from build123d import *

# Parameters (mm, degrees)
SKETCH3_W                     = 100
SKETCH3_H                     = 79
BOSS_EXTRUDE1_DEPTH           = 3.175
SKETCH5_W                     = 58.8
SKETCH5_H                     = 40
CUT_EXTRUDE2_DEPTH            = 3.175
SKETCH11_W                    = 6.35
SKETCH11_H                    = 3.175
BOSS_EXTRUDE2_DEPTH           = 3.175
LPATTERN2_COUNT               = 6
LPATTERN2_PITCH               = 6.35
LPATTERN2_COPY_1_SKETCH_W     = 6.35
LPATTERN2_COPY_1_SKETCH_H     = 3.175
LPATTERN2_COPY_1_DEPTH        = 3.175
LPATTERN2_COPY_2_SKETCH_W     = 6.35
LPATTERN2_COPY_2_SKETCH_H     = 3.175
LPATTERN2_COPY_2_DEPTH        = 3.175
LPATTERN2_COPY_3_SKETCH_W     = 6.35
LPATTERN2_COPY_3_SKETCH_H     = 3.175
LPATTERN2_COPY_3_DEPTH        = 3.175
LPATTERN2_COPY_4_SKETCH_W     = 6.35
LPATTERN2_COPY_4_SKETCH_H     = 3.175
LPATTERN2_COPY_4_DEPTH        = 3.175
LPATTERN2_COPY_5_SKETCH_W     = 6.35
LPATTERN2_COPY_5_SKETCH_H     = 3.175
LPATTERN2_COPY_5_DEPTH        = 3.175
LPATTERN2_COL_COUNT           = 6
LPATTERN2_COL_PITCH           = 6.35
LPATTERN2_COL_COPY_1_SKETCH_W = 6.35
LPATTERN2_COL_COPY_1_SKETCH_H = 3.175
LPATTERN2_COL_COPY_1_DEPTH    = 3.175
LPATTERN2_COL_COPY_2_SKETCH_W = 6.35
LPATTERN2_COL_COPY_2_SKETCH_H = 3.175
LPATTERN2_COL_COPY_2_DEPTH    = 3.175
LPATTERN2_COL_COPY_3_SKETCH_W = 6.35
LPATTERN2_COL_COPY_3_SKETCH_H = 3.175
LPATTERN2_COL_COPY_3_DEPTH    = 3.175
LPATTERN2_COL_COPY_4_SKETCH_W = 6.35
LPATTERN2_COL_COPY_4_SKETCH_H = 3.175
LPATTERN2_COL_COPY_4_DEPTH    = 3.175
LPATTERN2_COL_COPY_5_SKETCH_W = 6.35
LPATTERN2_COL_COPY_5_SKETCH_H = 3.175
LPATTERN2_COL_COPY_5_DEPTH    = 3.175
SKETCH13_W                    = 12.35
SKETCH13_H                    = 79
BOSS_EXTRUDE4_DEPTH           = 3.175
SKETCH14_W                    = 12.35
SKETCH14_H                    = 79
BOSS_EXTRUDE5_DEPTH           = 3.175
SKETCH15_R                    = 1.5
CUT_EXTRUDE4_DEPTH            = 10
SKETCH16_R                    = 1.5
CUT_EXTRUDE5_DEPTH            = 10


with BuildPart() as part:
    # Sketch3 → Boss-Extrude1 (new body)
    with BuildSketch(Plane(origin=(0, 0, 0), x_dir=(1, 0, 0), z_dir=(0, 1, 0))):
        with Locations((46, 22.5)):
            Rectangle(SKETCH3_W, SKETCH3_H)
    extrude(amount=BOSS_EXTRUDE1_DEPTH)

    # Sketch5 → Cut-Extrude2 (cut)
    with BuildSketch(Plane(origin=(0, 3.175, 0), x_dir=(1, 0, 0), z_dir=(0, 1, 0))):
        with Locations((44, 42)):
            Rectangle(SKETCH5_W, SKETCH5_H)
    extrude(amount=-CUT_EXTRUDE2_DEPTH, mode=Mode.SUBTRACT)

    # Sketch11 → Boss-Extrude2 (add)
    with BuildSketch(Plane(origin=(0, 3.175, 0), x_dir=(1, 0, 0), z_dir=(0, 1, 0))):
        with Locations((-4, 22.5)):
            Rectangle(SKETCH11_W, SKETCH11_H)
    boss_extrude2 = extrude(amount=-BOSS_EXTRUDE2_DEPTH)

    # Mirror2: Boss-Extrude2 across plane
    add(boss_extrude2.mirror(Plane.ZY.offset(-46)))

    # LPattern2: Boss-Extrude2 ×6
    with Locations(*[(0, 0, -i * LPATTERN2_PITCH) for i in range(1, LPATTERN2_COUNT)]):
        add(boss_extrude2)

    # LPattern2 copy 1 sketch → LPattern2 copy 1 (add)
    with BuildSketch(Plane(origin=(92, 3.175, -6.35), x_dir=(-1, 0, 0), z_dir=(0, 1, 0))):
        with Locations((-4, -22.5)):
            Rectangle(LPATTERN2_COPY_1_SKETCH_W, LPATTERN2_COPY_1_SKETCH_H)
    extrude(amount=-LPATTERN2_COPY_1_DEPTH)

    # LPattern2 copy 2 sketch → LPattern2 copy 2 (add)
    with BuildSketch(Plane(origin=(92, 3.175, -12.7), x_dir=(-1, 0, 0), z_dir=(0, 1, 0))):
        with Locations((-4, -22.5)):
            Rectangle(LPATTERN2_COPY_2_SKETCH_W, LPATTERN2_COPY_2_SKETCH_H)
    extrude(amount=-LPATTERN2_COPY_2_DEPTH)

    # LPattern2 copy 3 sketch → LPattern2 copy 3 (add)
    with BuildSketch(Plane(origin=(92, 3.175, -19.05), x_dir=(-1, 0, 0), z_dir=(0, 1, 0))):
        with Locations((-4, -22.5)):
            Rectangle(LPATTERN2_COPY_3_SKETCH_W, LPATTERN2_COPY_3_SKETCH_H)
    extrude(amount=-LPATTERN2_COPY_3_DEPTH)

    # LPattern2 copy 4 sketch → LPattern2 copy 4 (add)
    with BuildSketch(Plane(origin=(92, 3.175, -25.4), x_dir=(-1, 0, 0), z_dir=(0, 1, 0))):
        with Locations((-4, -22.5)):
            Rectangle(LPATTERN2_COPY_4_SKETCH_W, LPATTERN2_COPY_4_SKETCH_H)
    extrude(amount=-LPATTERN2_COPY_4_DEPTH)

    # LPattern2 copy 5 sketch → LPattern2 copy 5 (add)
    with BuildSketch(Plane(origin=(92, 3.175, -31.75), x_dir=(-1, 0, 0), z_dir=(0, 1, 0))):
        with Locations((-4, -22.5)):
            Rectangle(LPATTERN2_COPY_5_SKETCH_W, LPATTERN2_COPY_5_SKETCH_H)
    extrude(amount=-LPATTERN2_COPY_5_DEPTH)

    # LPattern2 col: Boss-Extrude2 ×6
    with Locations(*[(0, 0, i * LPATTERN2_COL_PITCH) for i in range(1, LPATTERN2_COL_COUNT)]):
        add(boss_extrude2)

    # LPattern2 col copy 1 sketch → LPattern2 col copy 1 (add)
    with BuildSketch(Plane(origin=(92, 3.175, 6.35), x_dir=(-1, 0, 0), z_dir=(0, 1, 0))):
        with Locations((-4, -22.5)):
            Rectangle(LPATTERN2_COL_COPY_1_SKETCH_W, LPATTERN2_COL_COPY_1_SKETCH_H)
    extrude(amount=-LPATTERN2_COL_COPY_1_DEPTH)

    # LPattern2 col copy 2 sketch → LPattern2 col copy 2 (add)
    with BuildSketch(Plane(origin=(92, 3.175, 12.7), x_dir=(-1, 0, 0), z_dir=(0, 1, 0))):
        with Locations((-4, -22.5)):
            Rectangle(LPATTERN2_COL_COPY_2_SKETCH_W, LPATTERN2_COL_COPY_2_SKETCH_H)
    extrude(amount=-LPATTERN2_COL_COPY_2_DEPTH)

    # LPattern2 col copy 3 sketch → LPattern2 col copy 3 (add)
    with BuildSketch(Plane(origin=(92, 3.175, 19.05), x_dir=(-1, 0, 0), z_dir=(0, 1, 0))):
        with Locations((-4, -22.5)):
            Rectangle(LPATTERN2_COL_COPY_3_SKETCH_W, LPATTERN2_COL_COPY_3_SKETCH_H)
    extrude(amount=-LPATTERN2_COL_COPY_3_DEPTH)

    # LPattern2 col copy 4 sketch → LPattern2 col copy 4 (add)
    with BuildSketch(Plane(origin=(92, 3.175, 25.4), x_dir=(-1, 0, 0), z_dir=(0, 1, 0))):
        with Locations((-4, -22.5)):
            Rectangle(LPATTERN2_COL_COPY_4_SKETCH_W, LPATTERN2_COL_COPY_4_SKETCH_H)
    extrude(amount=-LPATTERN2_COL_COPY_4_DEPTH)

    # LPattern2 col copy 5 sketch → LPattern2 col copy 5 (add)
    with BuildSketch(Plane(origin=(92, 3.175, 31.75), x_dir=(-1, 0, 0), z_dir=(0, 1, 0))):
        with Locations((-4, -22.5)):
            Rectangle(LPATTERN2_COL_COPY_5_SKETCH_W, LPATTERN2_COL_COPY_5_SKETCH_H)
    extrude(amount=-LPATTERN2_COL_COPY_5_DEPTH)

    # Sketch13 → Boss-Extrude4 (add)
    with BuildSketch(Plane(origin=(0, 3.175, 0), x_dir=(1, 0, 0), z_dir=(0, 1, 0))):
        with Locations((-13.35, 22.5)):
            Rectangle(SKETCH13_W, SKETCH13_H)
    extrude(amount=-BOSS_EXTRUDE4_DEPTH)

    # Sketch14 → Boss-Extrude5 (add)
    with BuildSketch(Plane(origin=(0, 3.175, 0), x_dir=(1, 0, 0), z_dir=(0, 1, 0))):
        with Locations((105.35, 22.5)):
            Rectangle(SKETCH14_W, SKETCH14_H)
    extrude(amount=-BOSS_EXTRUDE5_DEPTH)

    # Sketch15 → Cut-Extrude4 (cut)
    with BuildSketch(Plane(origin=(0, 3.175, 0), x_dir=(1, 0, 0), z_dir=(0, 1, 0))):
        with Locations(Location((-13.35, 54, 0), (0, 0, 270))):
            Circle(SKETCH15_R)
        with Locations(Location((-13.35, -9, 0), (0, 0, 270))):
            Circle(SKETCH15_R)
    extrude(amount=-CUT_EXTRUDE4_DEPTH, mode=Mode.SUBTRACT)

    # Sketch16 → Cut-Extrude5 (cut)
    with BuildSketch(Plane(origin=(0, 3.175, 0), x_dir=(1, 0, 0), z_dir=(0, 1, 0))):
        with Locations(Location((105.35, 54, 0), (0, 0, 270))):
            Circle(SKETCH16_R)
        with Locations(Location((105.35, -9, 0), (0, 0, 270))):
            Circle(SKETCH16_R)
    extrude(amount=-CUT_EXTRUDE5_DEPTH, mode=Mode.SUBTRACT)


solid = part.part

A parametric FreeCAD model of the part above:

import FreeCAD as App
import Part
import Sketcher
from FreeCAD import Vector
Q = App.Units.Quantity

doc = App.newDocument("Part")
body = doc.addObject("PartDesign::Body", "Body")

# Sketch on XZ plane
sketch1 = body.newObject("Sketcher::SketchObject", "Sketch")
sketch1.AttachmentSupport = (doc.getObject("XZ_Plane"), [""])
sketch1.MapMode = "FlatFace"
sketch1.addGeometry([
    Part.LineSegment(Vector(-4, -62, 0), Vector(-4, 17, 0)),
    Part.LineSegment(Vector(-4, 17, 0), Vector(96, 17, 0)),
    Part.LineSegment(Vector(96, 17, 0), Vector(96, -62, 0)),
    Part.LineSegment(Vector(96, -62, 0), Vector(-4, -62, 0)),
], False)
sketch1.addConstraint([
    Sketcher.Constraint("Coincident", 0, 2, 1, 1),
    Sketcher.Constraint("Coincident", 1, 2, 2, 1),
    Sketcher.Constraint("Coincident", 2, 2, 3, 1),
    Sketcher.Constraint("Coincident", 3, 2, 0, 1),
    Sketcher.Constraint("Vertical", 0),
    Sketcher.Constraint("Horizontal", 1),
    Sketcher.Constraint("Vertical", 2),
    Sketcher.Constraint("Horizontal", 3),
    Sketcher.Constraint("DistanceX", 1, 1, 1, 2, Q("100 mm")),
    Sketcher.Constraint("DistanceY", 0, 1, 0, 2, Q("79 mm")),
    Sketcher.Constraint("DistanceX", 0, 2, -1, 1, Q("4 mm")),
    Sketcher.Constraint("DistanceY", -1, 1, 0, 2, Q("17 mm")),
])
pad1 = body.newObject("PartDesign::Pad", "Pad")
pad1.Profile = sketch1
pad1.Length = 3.175
pad1.Reversed = True

# Sketch on XZ plane
sketch2 = body.newObject("Sketcher::SketchObject", "Sketch001")
sketch2.AttachmentSupport = (doc.getObject("XZ_Plane"), [""])
sketch2.MapMode = "FlatFace"
sketch2.AttachmentOffset = App.Placement(Vector(0, 0, -3.175), App.Rotation())
sketch2.addGeometry([
    Part.LineSegment(Vector(15, -62, 0), Vector(15, -22, 0)),
    Part.LineSegment(Vector(15, -22, 0), Vector(73, -22, 0)),
    Part.LineSegment(Vector(73, -22, 0), Vector(73, -62, 0)),
    Part.LineSegment(Vector(73, -62, 0), Vector(15, -62, 0)),
], False)
sketch2.addConstraint([
    Sketcher.Constraint("Coincident", 0, 2, 1, 1),
    Sketcher.Constraint("Coincident", 1, 2, 2, 1),
    Sketcher.Constraint("Coincident", 2, 2, 3, 1),
    Sketcher.Constraint("Coincident", 3, 2, 0, 1),
    Sketcher.Constraint("Vertical", 0),
    Sketcher.Constraint("Horizontal", 1),
    Sketcher.Constraint("Vertical", 2),
    Sketcher.Constraint("Horizontal", 3),
    Sketcher.Constraint("DistanceY", 0, 1, 0, 2, Q("40 mm")),
    Sketcher.Constraint("DistanceX", 1, 1, 1, 2, Q("58.8 mm")),
    Sketcher.Constraint("DistanceY", 0, 2, -1, 1, Q("22 mm")),
    Sketcher.Constraint("DistanceX", -1, 1, 0, 2, Q("14.6 mm")),
])
pocket1 = body.newObject("PartDesign::Pocket", "Pocket")
pocket1.Profile = sketch2
pocket1.Length = 3.175
pocket1.Reversed = True

# Sketch on XZ plane
sketch3 = body.newObject("Sketcher::SketchObject", "Sketch002")
sketch3.AttachmentSupport = (doc.getObject("XZ_Plane"), [""])
sketch3.MapMode = "FlatFace"
sketch3.AttachmentOffset = App.Placement(Vector(0, 0, -3.175), App.Rotation())
sketch3.addGeometry([
    Part.LineSegment(Vector(-7.2, -24.1, 0), Vector(-7.2, -20.9, 0)),
    Part.LineSegment(Vector(-7.2, -20.9, 0), Vector(-0.8, -20.9, 0)),
    Part.LineSegment(Vector(-0.8, -20.9, 0), Vector(-0.8, -24.1, 0)),
    Part.LineSegment(Vector(-0.8, -24.1, 0), Vector(-7.2, -24.1, 0)),
], False)
sketch3.addConstraint([
    Sketcher.Constraint("Coincident", 0, 2, 1, 1),
    Sketcher.Constraint("Coincident", 1, 2, 2, 1),
    Sketcher.Constraint("Coincident", 2, 2, 3, 1),
    Sketcher.Constraint("Coincident", 3, 2, 0, 1),
    Sketcher.Constraint("Vertical", 0),
    Sketcher.Constraint("Horizontal", 1),
    Sketcher.Constraint("Vertical", 2),
    Sketcher.Constraint("Horizontal", 3),
    Sketcher.Constraint("DistanceX", 1, 1, 1, 2, Q("6.35 mm")),
    Sketcher.Constraint("DistanceY", 0, 1, 0, 2, Q("3.175 mm")),
    Sketcher.Constraint("DistanceX", 0, 2, -1, 1, Q("7.175 mm")),
    Sketcher.Constraint("DistanceY", 0, 2, -1, 1, Q("20.9125 mm")),
])
pad2 = body.newObject("PartDesign::Pad", "Pad001")
pad2.Profile = sketch3
pad2.Length = 3.175
doc.recompute()

datumplane = body.newObject("PartDesign::Plane", "DatumPlane")
datumplane.AttachmentSupport = (doc.getObject("YZ_Plane"), [""])
datumplane.MapMode = "FlatFace"
datumplane.AttachmentOffset = App.Placement(Vector(0, 0, 46), App.Rotation())
mirrored = body.newObject("PartDesign::Mirrored", "Mirrored")
mirrored.Originals = [pad2]
mirrored.MirrorPlane = (datumplane, [""])
body.Tip = mirrored
doc.recompute()

linearpattern = body.newObject("PartDesign::LinearPattern", "LinearPattern")
linearpattern.Originals = [pad2]
linearpattern.Direction = (doc.getObject("Z_Axis"), [""])
linearpattern.Mode = "offset"
linearpattern.Offset = 6.35
linearpattern.Occurrences = 6
linearpattern.Reversed = True
body.Tip = linearpattern

# Sketch on XZ plane
sketch4 = body.newObject("Sketcher::SketchObject", "Sketch003")
sketch4.AttachmentSupport = (doc.getObject("XZ_Plane"), [""])
sketch4.MapMode = "FlatFace"
sketch4.AttachmentOffset = App.Placement(Vector(0, 0, -3.175), App.Rotation())
sketch4.addGeometry([
    Part.LineSegment(Vector(99.2, -27.3, 0), Vector(99.2, -30.4, 0)),
    Part.LineSegment(Vector(99.2, -30.4, 0), Vector(92.8, -30.4, 0)),
    Part.LineSegment(Vector(92.8, -30.4, 0), Vector(92.8, -27.3, 0)),
    Part.LineSegment(Vector(92.8, -27.3, 0), Vector(99.2, -27.3, 0)),
], False)
sketch4.addConstraint([
    Sketcher.Constraint("Coincident", 0, 2, 1, 1),
    Sketcher.Constraint("Coincident", 1, 2, 2, 1),
    Sketcher.Constraint("Coincident", 2, 2, 3, 1),
    Sketcher.Constraint("Coincident", 3, 2, 0, 1),
    Sketcher.Constraint("Vertical", 0),
    Sketcher.Constraint("Horizontal", 1),
    Sketcher.Constraint("Vertical", 2),
    Sketcher.Constraint("Horizontal", 3),
    Sketcher.Constraint("DistanceX", 1, 2, 1, 1, Q("6.35 mm")),
    Sketcher.Constraint("DistanceY", 0, 2, 0, 1, Q("3.175 mm")),
    Sketcher.Constraint("DistanceX", -1, 1, 0, 2, Q("99.175 mm")),
    Sketcher.Constraint("DistanceY", 0, 2, -1, 1, Q("30.4375 mm")),
])
pad3 = body.newObject("PartDesign::Pad", "Pad002")
pad3.Profile = sketch4
pad3.Length = 3.175

# Sketch on XZ plane
sketch5 = body.newObject("Sketcher::SketchObject", "Sketch004")
sketch5.AttachmentSupport = (doc.getObject("XZ_Plane"), [""])
sketch5.MapMode = "FlatFace"
sketch5.AttachmentOffset = App.Placement(Vector(0, 0, -3.175), App.Rotation())
sketch5.addGeometry([
    Part.LineSegment(Vector(99.2, -33.6, 0), Vector(99.2, -36.8, 0)),
    Part.LineSegment(Vector(99.2, -36.8, 0), Vector(92.8, -36.8, 0)),
    Part.LineSegment(Vector(92.8, -36.8, 0), Vector(92.8, -33.6, 0)),
    Part.LineSegment(Vector(92.8, -33.6, 0), Vector(99.2, -33.6, 0)),
], False)
sketch5.addConstraint([
    Sketcher.Constraint("Coincident", 0, 2, 1, 1),
    Sketcher.Constraint("Coincident", 1, 2, 2, 1),
    Sketcher.Constraint("Coincident", 2, 2, 3, 1),
    Sketcher.Constraint("Coincident", 3, 2, 0, 1),
    Sketcher.Constraint("Vertical", 0),
    Sketcher.Constraint("Horizontal", 1),
    Sketcher.Constraint("Vertical", 2),
    Sketcher.Constraint("Horizontal", 3),
    Sketcher.Constraint("DistanceX", 1, 2, 1, 1, Q("6.35 mm")),
    Sketcher.Constraint("DistanceY", 0, 2, 0, 1, Q("3.175 mm")),
    Sketcher.Constraint("DistanceX", -1, 1, 0, 2, Q("99.175 mm")),
    Sketcher.Constraint("DistanceY", 0, 2, -1, 1, Q("36.7875 mm")),
])
pad4 = body.newObject("PartDesign::Pad", "Pad003")
pad4.Profile = sketch5
pad4.Length = 3.175

# Sketch on XZ plane
sketch6 = body.newObject("Sketcher::SketchObject", "Sketch005")
sketch6.AttachmentSupport = (doc.getObject("XZ_Plane"), [""])
sketch6.MapMode = "FlatFace"
sketch6.AttachmentOffset = App.Placement(Vector(0, 0, -3.175), App.Rotation())
sketch6.addGeometry([
    Part.LineSegment(Vector(99.2, -40, 0), Vector(99.2, -43.1, 0)),
    Part.LineSegment(Vector(99.2, -43.1, 0), Vector(92.8, -43.1, 0)),
    Part.LineSegment(Vector(92.8, -43.1, 0), Vector(92.8, -40, 0)),
    Part.LineSegment(Vector(92.8, -40, 0), Vector(99.2, -40, 0)),
], False)
sketch6.addConstraint([
    Sketcher.Constraint("Coincident", 0, 2, 1, 1),
    Sketcher.Constraint("Coincident", 1, 2, 2, 1),
    Sketcher.Constraint("Coincident", 2, 2, 3, 1),
    Sketcher.Constraint("Coincident", 3, 2, 0, 1),
    Sketcher.Constraint("Vertical", 0),
    Sketcher.Constraint("Horizontal", 1),
    Sketcher.Constraint("Vertical", 2),
    Sketcher.Constraint("Horizontal", 3),
    Sketcher.Constraint("DistanceX", 1, 2, 1, 1, Q("6.35 mm")),
    Sketcher.Constraint("DistanceY", 0, 2, 0, 1, Q("3.175 mm")),
    Sketcher.Constraint("DistanceX", -1, 1, 0, 2, Q("99.175 mm")),
    Sketcher.Constraint("DistanceY", 0, 2, -1, 1, Q("43.1375 mm")),
])
pad5 = body.newObject("PartDesign::Pad", "Pad004")
pad5.Profile = sketch6
pad5.Length = 3.175

# Sketch on XZ plane
sketch7 = body.newObject("Sketcher::SketchObject", "Sketch006")
sketch7.AttachmentSupport = (doc.getObject("XZ_Plane"), [""])
sketch7.MapMode = "FlatFace"
sketch7.AttachmentOffset = App.Placement(Vector(0, 0, -3.175), App.Rotation())
sketch7.addGeometry([
    Part.LineSegment(Vector(99.2, -46.3, 0), Vector(99.2, -49.5, 0)),
    Part.LineSegment(Vector(99.2, -49.5, 0), Vector(92.8, -49.5, 0)),
    Part.LineSegment(Vector(92.8, -49.5, 0), Vector(92.8, -46.3, 0)),
    Part.LineSegment(Vector(92.8, -46.3, 0), Vector(99.2, -46.3, 0)),
], False)
sketch7.addConstraint([
    Sketcher.Constraint("Coincident", 0, 2, 1, 1),
    Sketcher.Constraint("Coincident", 1, 2, 2, 1),
    Sketcher.Constraint("Coincident", 2, 2, 3, 1),
    Sketcher.Constraint("Coincident", 3, 2, 0, 1),
    Sketcher.Constraint("Vertical", 0),
    Sketcher.Constraint("Horizontal", 1),
    Sketcher.Constraint("Vertical", 2),
    Sketcher.Constraint("Horizontal", 3),
    Sketcher.Constraint("DistanceX", 1, 2, 1, 1, Q("6.35 mm")),
    Sketcher.Constraint("DistanceY", 0, 2, 0, 1, Q("3.175 mm")),
    Sketcher.Constraint("DistanceX", -1, 1, 0, 2, Q("99.175 mm")),
    Sketcher.Constraint("DistanceY", 0, 2, -1, 1, Q("49.4875 mm")),
])
pad6 = body.newObject("PartDesign::Pad", "Pad005")
pad6.Profile = sketch7
pad6.Length = 3.175

# Sketch on XZ plane
sketch8 = body.newObject("Sketcher::SketchObject", "Sketch007")
sketch8.AttachmentSupport = (doc.getObject("XZ_Plane"), [""])
sketch8.MapMode = "FlatFace"
sketch8.AttachmentOffset = App.Placement(Vector(0, 0, -3.175), App.Rotation())
sketch8.addGeometry([
    Part.LineSegment(Vector(99.2, -52.7, 0), Vector(99.2, -55.8, 0)),
    Part.LineSegment(Vector(99.2, -55.8, 0), Vector(92.8, -55.8, 0)),
    Part.LineSegment(Vector(92.8, -55.8, 0), Vector(92.8, -52.7, 0)),
    Part.LineSegment(Vector(92.8, -52.7, 0), Vector(99.2, -52.7, 0)),
], False)
sketch8.addConstraint([
    Sketcher.Constraint("Coincident", 0, 2, 1, 1),
    Sketcher.Constraint("Coincident", 1, 2, 2, 1),
    Sketcher.Constraint("Coincident", 2, 2, 3, 1),
    Sketcher.Constraint("Coincident", 3, 2, 0, 1),
    Sketcher.Constraint("Vertical", 0),
    Sketcher.Constraint("Horizontal", 1),
    Sketcher.Constraint("Vertical", 2),
    Sketcher.Constraint("Horizontal", 3),
    Sketcher.Constraint("DistanceX", 1, 2, 1, 1, Q("6.35 mm")),
    Sketcher.Constraint("DistanceY", 0, 2, 0, 1, Q("3.175 mm")),
    Sketcher.Constraint("DistanceX", -1, 1, 0, 2, Q("99.175 mm")),
    Sketcher.Constraint("DistanceY", 0, 2, -1, 1, Q("55.8375 mm")),
])
pad7 = body.newObject("PartDesign::Pad", "Pad006")
pad7.Profile = sketch8
pad7.Length = 3.175
doc.recompute()

linearpattern2 = body.newObject("PartDesign::LinearPattern", "LinearPattern001")
linearpattern2.Originals = [pad2]
linearpattern2.Direction = (doc.getObject("Z_Axis"), [""])
linearpattern2.Mode = "offset"
linearpattern2.Offset = 6.35
linearpattern2.Occurrences = 6
body.Tip = linearpattern2

# Sketch on XZ plane
sketch9 = body.newObject("Sketcher::SketchObject", "Sketch008")
sketch9.AttachmentSupport = (doc.getObject("XZ_Plane"), [""])
sketch9.MapMode = "FlatFace"
sketch9.AttachmentOffset = App.Placement(Vector(0, 0, -3.175), App.Rotation())
sketch9.addGeometry([
    Part.LineSegment(Vector(99.2, -14.6, 0), Vector(99.2, -17.7, 0)),
    Part.LineSegment(Vector(99.2, -17.7, 0), Vector(92.8, -17.7, 0)),
    Part.LineSegment(Vector(92.8, -17.7, 0), Vector(92.8, -14.6, 0)),
    Part.LineSegment(Vector(92.8, -14.6, 0), Vector(99.2, -14.6, 0)),
], False)
sketch9.addConstraint([
    Sketcher.Constraint("Coincident", 0, 2, 1, 1),
    Sketcher.Constraint("Coincident", 1, 2, 2, 1),
    Sketcher.Constraint("Coincident", 2, 2, 3, 1),
    Sketcher.Constraint("Coincident", 3, 2, 0, 1),
    Sketcher.Constraint("Vertical", 0),
    Sketcher.Constraint("Horizontal", 1),
    Sketcher.Constraint("Vertical", 2),
    Sketcher.Constraint("Horizontal", 3),
    Sketcher.Constraint("DistanceX", 1, 2, 1, 1, Q("6.35 mm")),
    Sketcher.Constraint("DistanceY", 0, 2, 0, 1, Q("3.175 mm")),
    Sketcher.Constraint("DistanceX", -1, 1, 0, 2, Q("99.175 mm")),
    Sketcher.Constraint("DistanceY", 0, 2, -1, 1, Q("17.7375 mm")),
])
pad8 = body.newObject("PartDesign::Pad", "Pad007")
pad8.Profile = sketch9
pad8.Length = 3.175

# Sketch on XZ plane
sketch10 = body.newObject("Sketcher::SketchObject", "Sketch009")
sketch10.AttachmentSupport = (doc.getObject("XZ_Plane"), [""])
sketch10.MapMode = "FlatFace"
sketch10.AttachmentOffset = App.Placement(Vector(0, 0, -3.175), App.Rotation())
sketch10.addGeometry([
    Part.LineSegment(Vector(99.2, -8.2, 0), Vector(99.2, -11.4, 0)),
    Part.LineSegment(Vector(99.2, -11.4, 0), Vector(92.8, -11.4, 0)),
    Part.LineSegment(Vector(92.8, -11.4, 0), Vector(92.8, -8.2, 0)),
    Part.LineSegment(Vector(92.8, -8.2, 0), Vector(99.2, -8.2, 0)),
], False)
sketch10.addConstraint([
    Sketcher.Constraint("Coincident", 0, 2, 1, 1),
    Sketcher.Constraint("Coincident", 1, 2, 2, 1),
    Sketcher.Constraint("Coincident", 2, 2, 3, 1),
    Sketcher.Constraint("Coincident", 3, 2, 0, 1),
    Sketcher.Constraint("Vertical", 0),
    Sketcher.Constraint("Horizontal", 1),
    Sketcher.Constraint("Vertical", 2),
    Sketcher.Constraint("Horizontal", 3),
    Sketcher.Constraint("DistanceX", 1, 2, 1, 1, Q("6.35 mm")),
    Sketcher.Constraint("DistanceY", 0, 2, 0, 1, Q("3.175 mm")),
    Sketcher.Constraint("DistanceX", -1, 1, 0, 2, Q("99.175 mm")),
    Sketcher.Constraint("DistanceY", 0, 2, -1, 1, Q("11.3875 mm")),
])
pad9 = body.newObject("PartDesign::Pad", "Pad008")
pad9.Profile = sketch10
pad9.Length = 3.175

# Sketch on XZ plane
sketch11 = body.newObject("Sketcher::SketchObject", "Sketch010")
sketch11.AttachmentSupport = (doc.getObject("XZ_Plane"), [""])
sketch11.MapMode = "FlatFace"
sketch11.AttachmentOffset = App.Placement(Vector(0, 0, -3.175), App.Rotation())
sketch11.addGeometry([
    Part.LineSegment(Vector(99.2, -1.9, 0), Vector(99.2, -5, 0)),
    Part.LineSegment(Vector(99.2, -5, 0), Vector(92.8, -5, 0)),
    Part.LineSegment(Vector(92.8, -5, 0), Vector(92.8, -1.9, 0)),
    Part.LineSegment(Vector(92.8, -1.9, 0), Vector(99.2, -1.9, 0)),
], False)
sketch11.addConstraint([
    Sketcher.Constraint("Coincident", 0, 2, 1, 1),
    Sketcher.Constraint("Coincident", 1, 2, 2, 1),
    Sketcher.Constraint("Coincident", 2, 2, 3, 1),
    Sketcher.Constraint("Coincident", 3, 2, 0, 1),
    Sketcher.Constraint("Vertical", 0),
    Sketcher.Constraint("Horizontal", 1),
    Sketcher.Constraint("Vertical", 2),
    Sketcher.Constraint("Horizontal", 3),
    Sketcher.Constraint("DistanceX", 1, 2, 1, 1, Q("6.35 mm")),
    Sketcher.Constraint("DistanceY", 0, 2, 0, 1, Q("3.175 mm")),
    Sketcher.Constraint("DistanceX", -1, 1, 0, 2, Q("99.175 mm")),
    Sketcher.Constraint("DistanceY", 0, 2, -1, 1, Q("5.0375 mm")),
])
pad10 = body.newObject("PartDesign::Pad", "Pad009")
pad10.Profile = sketch11
pad10.Length = 3.175

# Sketch on XZ plane
sketch12 = body.newObject("Sketcher::SketchObject", "Sketch011")
sketch12.AttachmentSupport = (doc.getObject("XZ_Plane"), [""])
sketch12.MapMode = "FlatFace"
sketch12.AttachmentOffset = App.Placement(Vector(0, 0, -3.175), App.Rotation())
sketch12.addGeometry([
    Part.LineSegment(Vector(99.2, 4.5, 0), Vector(99.2, 1.3, 0)),
    Part.LineSegment(Vector(99.2, 1.3, 0), Vector(92.8, 1.3, 0)),
    Part.LineSegment(Vector(92.8, 1.3, 0), Vector(92.8, 4.5, 0)),
    Part.LineSegment(Vector(92.8, 4.5, 0), Vector(99.2, 4.5, 0)),
], False)
sketch12.addConstraint([
    Sketcher.Constraint("Coincident", 0, 2, 1, 1),
    Sketcher.Constraint("Coincident", 1, 2, 2, 1),
    Sketcher.Constraint("Coincident", 2, 2, 3, 1),
    Sketcher.Constraint("Coincident", 3, 2, 0, 1),
    Sketcher.Constraint("Vertical", 0),
    Sketcher.Constraint("Horizontal", 1),
    Sketcher.Constraint("Vertical", 2),
    Sketcher.Constraint("Horizontal", 3),
    Sketcher.Constraint("DistanceX", 1, 2, 1, 1, Q("6.35 mm")),
    Sketcher.Constraint("DistanceY", 0, 2, 0, 1, Q("3.175 mm")),
    Sketcher.Constraint("DistanceX", -1, 1, 0, 2, Q("99.175 mm")),
    Sketcher.Constraint("DistanceY", -1, 1, 0, 2, Q("1.3125 mm")),
])
pad11 = body.newObject("PartDesign::Pad", "Pad010")
pad11.Profile = sketch12
pad11.Length = 3.175

# Sketch on XZ plane
sketch13 = body.newObject("Sketcher::SketchObject", "Sketch012")
sketch13.AttachmentSupport = (doc.getObject("XZ_Plane"), [""])
sketch13.MapMode = "FlatFace"
sketch13.AttachmentOffset = App.Placement(Vector(0, 0, -3.175), App.Rotation())
sketch13.addGeometry([
    Part.LineSegment(Vector(99.2, 10.8, 0), Vector(99.2, 7.7, 0)),
    Part.LineSegment(Vector(99.2, 7.7, 0), Vector(92.8, 7.7, 0)),
    Part.LineSegment(Vector(92.8, 7.7, 0), Vector(92.8, 10.8, 0)),
    Part.LineSegment(Vector(92.8, 10.8, 0), Vector(99.2, 10.8, 0)),
], False)
sketch13.addConstraint([
    Sketcher.Constraint("Coincident", 0, 2, 1, 1),
    Sketcher.Constraint("Coincident", 1, 2, 2, 1),
    Sketcher.Constraint("Coincident", 2, 2, 3, 1),
    Sketcher.Constraint("Coincident", 3, 2, 0, 1),
    Sketcher.Constraint("Vertical", 0),
    Sketcher.Constraint("Horizontal", 1),
    Sketcher.Constraint("Vertical", 2),
    Sketcher.Constraint("Horizontal", 3),
    Sketcher.Constraint("DistanceX", 1, 2, 1, 1, Q("6.35 mm")),
    Sketcher.Constraint("DistanceY", 0, 2, 0, 1, Q("3.175 mm")),
    Sketcher.Constraint("DistanceX", -1, 1, 0, 2, Q("99.175 mm")),
    Sketcher.Constraint("DistanceY", -1, 1, 0, 2, Q("7.6625 mm")),
])
pad12 = body.newObject("PartDesign::Pad", "Pad011")
pad12.Profile = sketch13
pad12.Length = 3.175

# Sketch on XZ plane
sketch14 = body.newObject("Sketcher::SketchObject", "Sketch013")
sketch14.AttachmentSupport = (doc.getObject("XZ_Plane"), [""])
sketch14.MapMode = "FlatFace"
sketch14.AttachmentOffset = App.Placement(Vector(0, 0, -3.175), App.Rotation())
sketch14.addGeometry([
    Part.LineSegment(Vector(-20, -62, 0), Vector(-20, 17, 0)),
    Part.LineSegment(Vector(-20, 17, 0), Vector(-7, 17, 0)),
    Part.LineSegment(Vector(-7, 17, 0), Vector(-7, -62, 0)),
    Part.LineSegment(Vector(-7, -62, 0), Vector(-20, -62, 0)),
], False)
sketch14.addConstraint([
    Sketcher.Constraint("Coincident", 0, 2, 1, 1),
    Sketcher.Constraint("Coincident", 1, 2, 2, 1),
    Sketcher.Constraint("Coincident", 2, 2, 3, 1),
    Sketcher.Constraint("Coincident", 3, 2, 0, 1),
    Sketcher.Constraint("Vertical", 0),
    Sketcher.Constraint("Horizontal", 1),
    Sketcher.Constraint("Vertical", 2),
    Sketcher.Constraint("Horizontal", 3),
    Sketcher.Constraint("DistanceY", 0, 1, 0, 2, Q("79 mm")),
    Sketcher.Constraint("DistanceY", -1, 1, 0, 2, Q("17 mm")),
    Sketcher.Constraint("DistanceX", 1, 1, 1, 2, Q("12.35 mm")),
    Sketcher.Constraint("DistanceX", 0, 2, -1, 1, Q("19.525 mm")),
])
pad13 = body.newObject("PartDesign::Pad", "Pad012")
pad13.Profile = sketch14
pad13.Length = 3.175

# Sketch on XZ plane
sketch15 = body.newObject("Sketcher::SketchObject", "Sketch014")
sketch15.AttachmentSupport = (doc.getObject("XZ_Plane"), [""])
sketch15.MapMode = "FlatFace"
sketch15.AttachmentOffset = App.Placement(Vector(0, 0, -3.175), App.Rotation())
sketch15.addGeometry([
    Part.LineSegment(Vector(99, -62, 0), Vector(99, 17, 0)),
    Part.LineSegment(Vector(99, 17, 0), Vector(112, 17, 0)),
    Part.LineSegment(Vector(112, 17, 0), Vector(112, -62, 0)),
    Part.LineSegment(Vector(112, -62, 0), Vector(99, -62, 0)),
], False)
sketch15.addConstraint([
    Sketcher.Constraint("Coincident", 0, 2, 1, 1),
    Sketcher.Constraint("Coincident", 1, 2, 2, 1),
    Sketcher.Constraint("Coincident", 2, 2, 3, 1),
    Sketcher.Constraint("Coincident", 3, 2, 0, 1),
    Sketcher.Constraint("Vertical", 0),
    Sketcher.Constraint("Horizontal", 1),
    Sketcher.Constraint("Vertical", 2),
    Sketcher.Constraint("Horizontal", 3),
    Sketcher.Constraint("DistanceY", 0, 1, 0, 2, Q("79 mm")),
    Sketcher.Constraint("DistanceY", -1, 1, 0, 2, Q("17 mm")),
    Sketcher.Constraint("DistanceX", 1, 1, 1, 2, Q("12.35 mm")),
    Sketcher.Constraint("DistanceX", -1, 1, 0, 2, Q("99.175 mm")),
])
pad14 = body.newObject("PartDesign::Pad", "Pad013")
pad14.Profile = sketch15
pad14.Length = 3.175

# Sketch on XZ plane
sketch16 = body.newObject("Sketcher::SketchObject", "Sketch015")
sketch16.AttachmentSupport = (doc.getObject("XZ_Plane"), [""])
sketch16.MapMode = "FlatFace"
sketch16.AttachmentOffset = App.Placement(Vector(0, 0, -3.175), App.Rotation())
sketch16.addGeometry([
    Part.Circle(Vector(-13.3, -54, 0), Vector(0, 0, 1), 1.5),
    Part.Circle(Vector(-13.3, 9, 0), Vector(0, 0, 1), 1.5),
], False)
sketch16.addConstraint([
    Sketcher.Constraint("Equal", 0, 1),
    Sketcher.Constraint("Vertical", 0, 3, 1, 3),
    Sketcher.Constraint("Diameter", 0, Q("3 mm")),
    Sketcher.Constraint("DistanceY", 0, 3, -1, 1, Q("54 mm")),
    Sketcher.Constraint("DistanceY", -1, 1, 1, 3, Q("9 mm")),
    Sketcher.Constraint("DistanceX", 0, 3, -1, 1, Q("13.35 mm")),
])
pocket2 = body.newObject("PartDesign::Pocket", "Pocket001")
pocket2.Profile = sketch16
pocket2.Length = 10
pocket2.Reversed = True

# Sketch on XZ plane
sketch17 = body.newObject("Sketcher::SketchObject", "Sketch016")
sketch17.AttachmentSupport = (doc.getObject("XZ_Plane"), [""])
sketch17.MapMode = "FlatFace"
sketch17.AttachmentOffset = App.Placement(Vector(0, 0, -3.175), App.Rotation())
sketch17.addGeometry([
    Part.Circle(Vector(105.3, -54, 0), Vector(0, 0, 1), 1.5),
    Part.Circle(Vector(105.3, 9, 0), Vector(0, 0, 1), 1.5),
], False)
sketch17.addConstraint([
    Sketcher.Constraint("Equal", 0, 1),
    Sketcher.Constraint("Vertical", 0, 3, 1, 3),
    Sketcher.Constraint("Diameter", 0, Q("3 mm")),
    Sketcher.Constraint("DistanceY", 0, 3, -1, 1, Q("54 mm")),
    Sketcher.Constraint("DistanceY", -1, 1, 1, 3, Q("9 mm")),
    Sketcher.Constraint("DistanceX", -1, 1, 0, 3, Q("105.35 mm")),
])
pocket3 = body.newObject("PartDesign::Pocket", "Pocket002")
pocket3.Profile = sketch17
pocket3.Length = 10
pocket3.Reversed = True

doc.recompute()
